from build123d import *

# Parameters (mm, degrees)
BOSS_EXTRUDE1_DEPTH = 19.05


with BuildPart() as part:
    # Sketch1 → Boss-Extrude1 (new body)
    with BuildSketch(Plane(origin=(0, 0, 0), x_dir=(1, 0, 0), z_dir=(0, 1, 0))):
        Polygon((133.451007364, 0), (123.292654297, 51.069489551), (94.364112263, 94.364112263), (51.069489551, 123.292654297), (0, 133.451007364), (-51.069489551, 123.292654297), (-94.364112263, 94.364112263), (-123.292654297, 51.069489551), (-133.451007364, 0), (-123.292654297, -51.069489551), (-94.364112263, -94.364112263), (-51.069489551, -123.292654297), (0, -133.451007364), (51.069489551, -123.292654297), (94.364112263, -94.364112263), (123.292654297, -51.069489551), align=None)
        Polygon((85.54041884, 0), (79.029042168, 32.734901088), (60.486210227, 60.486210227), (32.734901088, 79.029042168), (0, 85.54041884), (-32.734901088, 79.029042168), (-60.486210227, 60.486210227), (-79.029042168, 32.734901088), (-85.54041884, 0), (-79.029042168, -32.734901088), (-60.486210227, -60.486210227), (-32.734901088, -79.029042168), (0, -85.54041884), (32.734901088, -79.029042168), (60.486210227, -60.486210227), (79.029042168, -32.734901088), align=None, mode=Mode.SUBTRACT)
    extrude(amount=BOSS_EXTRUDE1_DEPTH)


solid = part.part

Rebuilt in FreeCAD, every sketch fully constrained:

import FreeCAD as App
import Part
import Sketcher

V = App.Vector
Q = App.Units.Quantity


def add_polygon(sketch, points):
    """Adds a closed chain of lines whose ends are joined by coincident constraints."""
    first, n = sketch.GeometryCount, len(points)
    for a, b in zip(points, points[1:] + points[:1]):
        sketch.addGeometry(Part.LineSegment(App.Vector(*a, 0), App.Vector(*b, 0)), False)
    for i in range(n):
        sketch.addConstraint(Sketcher.Constraint("Coincident", first + i, 2, first + (i + 1) % n, 1))

doc = App.newDocument("Part")
body = doc.addObject("PartDesign::Body", "Body")

# Sketch on XZ plane
sketch1 = doc.addObject("Sketcher::SketchObject", "Sketch")
body.addObject(sketch1)
sketch1.AttachmentSupport = (doc.XZ_Plane, [""])
sketch1.MapMode = "FlatFace"
add_polygon(sketch1, [(133, 0), (123, -51), (94, -94), (51, -123), (0, -133), (-51, -123), (-94, -94), (-123, -51), (-133, 0), (-123, 51), (-94, 94), (-51, 123), (0, 133), (51, 123), (94, 94), (123, 51)])  # lines 0-15
add_polygon(sketch1, [(79, -33), (86, 0), (79, 33), (60, 60), (33, 79), (0, 86), (-33, 79), (-60, 60), (-79, 33), (-86, 0), (-79, -33), (-60, -60), (-33, -79), (0, -86), (33, -79), (60, -60)])  # lines 16-31
sketch1.addConstraint([
    Sketcher.Constraint("Symmetric", 0, 2, 8, 2, -1, 1),
    Sketcher.Constraint("Symmetric", 1, 2, 9, 2, -1, 1),
    Sketcher.Constraint("Symmetric", 2, 2, 10, 2, -1, 1),
    Sketcher.Constraint("Symmetric", 3, 2, 11, 2, -1, 1),
    Sketcher.Constraint("Symmetric", 4, 2, 12, 2, -1, 1),
    Sketcher.Constraint("Symmetric", 5, 2, 13, 2, -1, 1),
    Sketcher.Constraint("Symmetric", 6, 2, 14, 2, -1, 1),
    Sketcher.Constraint("Symmetric", 7, 2, 15, 2, -1, 1),
    Sketcher.Constraint("Symmetric", 16, 2, 24, 2, -1, 1),
    Sketcher.Constraint("Symmetric", 17, 2, 25, 2, -1, 1),
    Sketcher.Constraint("Symmetric", 18, 2, 26, 2, -1, 1),
    Sketcher.Constraint("Symmetric", 19, 2, 27, 2, -1, 1),
    Sketcher.Constraint("Symmetric", 20, 2, 28, 2, -1, 1),
    Sketcher.Constraint("Symmetric", 21, 2, 29, 2, -1, 1),
    Sketcher.Constraint("Symmetric", 22, 2, 30, 2, -1, 1),
    Sketcher.Constraint("Symmetric", 23, 2, 31, 2, -1, 1),
    Sketcher.Constraint("Symmetric", 2, 2, 4, 2, -2),
    Sketcher.Constraint("Symmetric", 1, 2, 5, 2, -2),
    Sketcher.Constraint("Symmetric", 0, 2, 6, 2, -2),
    Sketcher.Constraint("Symmetric", 19, 2, 21, 2, -2),
    Sketcher.Constraint("Symmetric", 18, 2, 22, 2, -2),
    Sketcher.Constraint("Symmetric", 17, 2, 23, 2, -2),
    Sketcher.Constraint("PointOnObject", 3, 2, -2),
    Sketcher.Constraint("PointOnObject", 7, 2, -1),
    Sketcher.Constraint("PointOnObject", 16, 2, -1),
    Sketcher.Constraint("PointOnObject", 20, 2, -2),
    Sketcher.Constraint("Perpendicular", 0, 4),
    Sketcher.Constraint("Perpendicular", 1, 5),
    Sketcher.Constraint("Perpendicular", 12, 16),
    Sketcher.Constraint("Parallel", 14, 18),
    Sketcher.Constraint("Parallel", 13, 19),
    Sketcher.Constraint("Perpendicular", 16, 20),
    Sketcher.Constraint("Equal", 0, 1),
    Sketcher.Constraint("Equal", 1, 2),
    Sketcher.Constraint("Equal", 2, 3),
    Sketcher.Constraint("Equal", 17, 18),
    Sketcher.Constraint("Equal", 18, 19),
    Sketcher.Constraint("Equal", 19, 20),
    Sketcher.Constraint("Distance", 0, Q("2.05 in")),
    Sketcher.Constraint("Angle", 0, Q("-101.25 deg")),
    Sketcher.Constraint("Angle", 1, Q("-123.75 deg")),
    Sketcher.Constraint("DistanceY", -1, 1, 17, 2, 32.734901),
])
pad1 = doc.addObject("PartDesign::Pad", "Pad")
body.addObject(pad1)
pad1.Profile = sketch1
pad1.Length = Q("0.75 in")
pad1.Reversed = True

doc.recompute()
